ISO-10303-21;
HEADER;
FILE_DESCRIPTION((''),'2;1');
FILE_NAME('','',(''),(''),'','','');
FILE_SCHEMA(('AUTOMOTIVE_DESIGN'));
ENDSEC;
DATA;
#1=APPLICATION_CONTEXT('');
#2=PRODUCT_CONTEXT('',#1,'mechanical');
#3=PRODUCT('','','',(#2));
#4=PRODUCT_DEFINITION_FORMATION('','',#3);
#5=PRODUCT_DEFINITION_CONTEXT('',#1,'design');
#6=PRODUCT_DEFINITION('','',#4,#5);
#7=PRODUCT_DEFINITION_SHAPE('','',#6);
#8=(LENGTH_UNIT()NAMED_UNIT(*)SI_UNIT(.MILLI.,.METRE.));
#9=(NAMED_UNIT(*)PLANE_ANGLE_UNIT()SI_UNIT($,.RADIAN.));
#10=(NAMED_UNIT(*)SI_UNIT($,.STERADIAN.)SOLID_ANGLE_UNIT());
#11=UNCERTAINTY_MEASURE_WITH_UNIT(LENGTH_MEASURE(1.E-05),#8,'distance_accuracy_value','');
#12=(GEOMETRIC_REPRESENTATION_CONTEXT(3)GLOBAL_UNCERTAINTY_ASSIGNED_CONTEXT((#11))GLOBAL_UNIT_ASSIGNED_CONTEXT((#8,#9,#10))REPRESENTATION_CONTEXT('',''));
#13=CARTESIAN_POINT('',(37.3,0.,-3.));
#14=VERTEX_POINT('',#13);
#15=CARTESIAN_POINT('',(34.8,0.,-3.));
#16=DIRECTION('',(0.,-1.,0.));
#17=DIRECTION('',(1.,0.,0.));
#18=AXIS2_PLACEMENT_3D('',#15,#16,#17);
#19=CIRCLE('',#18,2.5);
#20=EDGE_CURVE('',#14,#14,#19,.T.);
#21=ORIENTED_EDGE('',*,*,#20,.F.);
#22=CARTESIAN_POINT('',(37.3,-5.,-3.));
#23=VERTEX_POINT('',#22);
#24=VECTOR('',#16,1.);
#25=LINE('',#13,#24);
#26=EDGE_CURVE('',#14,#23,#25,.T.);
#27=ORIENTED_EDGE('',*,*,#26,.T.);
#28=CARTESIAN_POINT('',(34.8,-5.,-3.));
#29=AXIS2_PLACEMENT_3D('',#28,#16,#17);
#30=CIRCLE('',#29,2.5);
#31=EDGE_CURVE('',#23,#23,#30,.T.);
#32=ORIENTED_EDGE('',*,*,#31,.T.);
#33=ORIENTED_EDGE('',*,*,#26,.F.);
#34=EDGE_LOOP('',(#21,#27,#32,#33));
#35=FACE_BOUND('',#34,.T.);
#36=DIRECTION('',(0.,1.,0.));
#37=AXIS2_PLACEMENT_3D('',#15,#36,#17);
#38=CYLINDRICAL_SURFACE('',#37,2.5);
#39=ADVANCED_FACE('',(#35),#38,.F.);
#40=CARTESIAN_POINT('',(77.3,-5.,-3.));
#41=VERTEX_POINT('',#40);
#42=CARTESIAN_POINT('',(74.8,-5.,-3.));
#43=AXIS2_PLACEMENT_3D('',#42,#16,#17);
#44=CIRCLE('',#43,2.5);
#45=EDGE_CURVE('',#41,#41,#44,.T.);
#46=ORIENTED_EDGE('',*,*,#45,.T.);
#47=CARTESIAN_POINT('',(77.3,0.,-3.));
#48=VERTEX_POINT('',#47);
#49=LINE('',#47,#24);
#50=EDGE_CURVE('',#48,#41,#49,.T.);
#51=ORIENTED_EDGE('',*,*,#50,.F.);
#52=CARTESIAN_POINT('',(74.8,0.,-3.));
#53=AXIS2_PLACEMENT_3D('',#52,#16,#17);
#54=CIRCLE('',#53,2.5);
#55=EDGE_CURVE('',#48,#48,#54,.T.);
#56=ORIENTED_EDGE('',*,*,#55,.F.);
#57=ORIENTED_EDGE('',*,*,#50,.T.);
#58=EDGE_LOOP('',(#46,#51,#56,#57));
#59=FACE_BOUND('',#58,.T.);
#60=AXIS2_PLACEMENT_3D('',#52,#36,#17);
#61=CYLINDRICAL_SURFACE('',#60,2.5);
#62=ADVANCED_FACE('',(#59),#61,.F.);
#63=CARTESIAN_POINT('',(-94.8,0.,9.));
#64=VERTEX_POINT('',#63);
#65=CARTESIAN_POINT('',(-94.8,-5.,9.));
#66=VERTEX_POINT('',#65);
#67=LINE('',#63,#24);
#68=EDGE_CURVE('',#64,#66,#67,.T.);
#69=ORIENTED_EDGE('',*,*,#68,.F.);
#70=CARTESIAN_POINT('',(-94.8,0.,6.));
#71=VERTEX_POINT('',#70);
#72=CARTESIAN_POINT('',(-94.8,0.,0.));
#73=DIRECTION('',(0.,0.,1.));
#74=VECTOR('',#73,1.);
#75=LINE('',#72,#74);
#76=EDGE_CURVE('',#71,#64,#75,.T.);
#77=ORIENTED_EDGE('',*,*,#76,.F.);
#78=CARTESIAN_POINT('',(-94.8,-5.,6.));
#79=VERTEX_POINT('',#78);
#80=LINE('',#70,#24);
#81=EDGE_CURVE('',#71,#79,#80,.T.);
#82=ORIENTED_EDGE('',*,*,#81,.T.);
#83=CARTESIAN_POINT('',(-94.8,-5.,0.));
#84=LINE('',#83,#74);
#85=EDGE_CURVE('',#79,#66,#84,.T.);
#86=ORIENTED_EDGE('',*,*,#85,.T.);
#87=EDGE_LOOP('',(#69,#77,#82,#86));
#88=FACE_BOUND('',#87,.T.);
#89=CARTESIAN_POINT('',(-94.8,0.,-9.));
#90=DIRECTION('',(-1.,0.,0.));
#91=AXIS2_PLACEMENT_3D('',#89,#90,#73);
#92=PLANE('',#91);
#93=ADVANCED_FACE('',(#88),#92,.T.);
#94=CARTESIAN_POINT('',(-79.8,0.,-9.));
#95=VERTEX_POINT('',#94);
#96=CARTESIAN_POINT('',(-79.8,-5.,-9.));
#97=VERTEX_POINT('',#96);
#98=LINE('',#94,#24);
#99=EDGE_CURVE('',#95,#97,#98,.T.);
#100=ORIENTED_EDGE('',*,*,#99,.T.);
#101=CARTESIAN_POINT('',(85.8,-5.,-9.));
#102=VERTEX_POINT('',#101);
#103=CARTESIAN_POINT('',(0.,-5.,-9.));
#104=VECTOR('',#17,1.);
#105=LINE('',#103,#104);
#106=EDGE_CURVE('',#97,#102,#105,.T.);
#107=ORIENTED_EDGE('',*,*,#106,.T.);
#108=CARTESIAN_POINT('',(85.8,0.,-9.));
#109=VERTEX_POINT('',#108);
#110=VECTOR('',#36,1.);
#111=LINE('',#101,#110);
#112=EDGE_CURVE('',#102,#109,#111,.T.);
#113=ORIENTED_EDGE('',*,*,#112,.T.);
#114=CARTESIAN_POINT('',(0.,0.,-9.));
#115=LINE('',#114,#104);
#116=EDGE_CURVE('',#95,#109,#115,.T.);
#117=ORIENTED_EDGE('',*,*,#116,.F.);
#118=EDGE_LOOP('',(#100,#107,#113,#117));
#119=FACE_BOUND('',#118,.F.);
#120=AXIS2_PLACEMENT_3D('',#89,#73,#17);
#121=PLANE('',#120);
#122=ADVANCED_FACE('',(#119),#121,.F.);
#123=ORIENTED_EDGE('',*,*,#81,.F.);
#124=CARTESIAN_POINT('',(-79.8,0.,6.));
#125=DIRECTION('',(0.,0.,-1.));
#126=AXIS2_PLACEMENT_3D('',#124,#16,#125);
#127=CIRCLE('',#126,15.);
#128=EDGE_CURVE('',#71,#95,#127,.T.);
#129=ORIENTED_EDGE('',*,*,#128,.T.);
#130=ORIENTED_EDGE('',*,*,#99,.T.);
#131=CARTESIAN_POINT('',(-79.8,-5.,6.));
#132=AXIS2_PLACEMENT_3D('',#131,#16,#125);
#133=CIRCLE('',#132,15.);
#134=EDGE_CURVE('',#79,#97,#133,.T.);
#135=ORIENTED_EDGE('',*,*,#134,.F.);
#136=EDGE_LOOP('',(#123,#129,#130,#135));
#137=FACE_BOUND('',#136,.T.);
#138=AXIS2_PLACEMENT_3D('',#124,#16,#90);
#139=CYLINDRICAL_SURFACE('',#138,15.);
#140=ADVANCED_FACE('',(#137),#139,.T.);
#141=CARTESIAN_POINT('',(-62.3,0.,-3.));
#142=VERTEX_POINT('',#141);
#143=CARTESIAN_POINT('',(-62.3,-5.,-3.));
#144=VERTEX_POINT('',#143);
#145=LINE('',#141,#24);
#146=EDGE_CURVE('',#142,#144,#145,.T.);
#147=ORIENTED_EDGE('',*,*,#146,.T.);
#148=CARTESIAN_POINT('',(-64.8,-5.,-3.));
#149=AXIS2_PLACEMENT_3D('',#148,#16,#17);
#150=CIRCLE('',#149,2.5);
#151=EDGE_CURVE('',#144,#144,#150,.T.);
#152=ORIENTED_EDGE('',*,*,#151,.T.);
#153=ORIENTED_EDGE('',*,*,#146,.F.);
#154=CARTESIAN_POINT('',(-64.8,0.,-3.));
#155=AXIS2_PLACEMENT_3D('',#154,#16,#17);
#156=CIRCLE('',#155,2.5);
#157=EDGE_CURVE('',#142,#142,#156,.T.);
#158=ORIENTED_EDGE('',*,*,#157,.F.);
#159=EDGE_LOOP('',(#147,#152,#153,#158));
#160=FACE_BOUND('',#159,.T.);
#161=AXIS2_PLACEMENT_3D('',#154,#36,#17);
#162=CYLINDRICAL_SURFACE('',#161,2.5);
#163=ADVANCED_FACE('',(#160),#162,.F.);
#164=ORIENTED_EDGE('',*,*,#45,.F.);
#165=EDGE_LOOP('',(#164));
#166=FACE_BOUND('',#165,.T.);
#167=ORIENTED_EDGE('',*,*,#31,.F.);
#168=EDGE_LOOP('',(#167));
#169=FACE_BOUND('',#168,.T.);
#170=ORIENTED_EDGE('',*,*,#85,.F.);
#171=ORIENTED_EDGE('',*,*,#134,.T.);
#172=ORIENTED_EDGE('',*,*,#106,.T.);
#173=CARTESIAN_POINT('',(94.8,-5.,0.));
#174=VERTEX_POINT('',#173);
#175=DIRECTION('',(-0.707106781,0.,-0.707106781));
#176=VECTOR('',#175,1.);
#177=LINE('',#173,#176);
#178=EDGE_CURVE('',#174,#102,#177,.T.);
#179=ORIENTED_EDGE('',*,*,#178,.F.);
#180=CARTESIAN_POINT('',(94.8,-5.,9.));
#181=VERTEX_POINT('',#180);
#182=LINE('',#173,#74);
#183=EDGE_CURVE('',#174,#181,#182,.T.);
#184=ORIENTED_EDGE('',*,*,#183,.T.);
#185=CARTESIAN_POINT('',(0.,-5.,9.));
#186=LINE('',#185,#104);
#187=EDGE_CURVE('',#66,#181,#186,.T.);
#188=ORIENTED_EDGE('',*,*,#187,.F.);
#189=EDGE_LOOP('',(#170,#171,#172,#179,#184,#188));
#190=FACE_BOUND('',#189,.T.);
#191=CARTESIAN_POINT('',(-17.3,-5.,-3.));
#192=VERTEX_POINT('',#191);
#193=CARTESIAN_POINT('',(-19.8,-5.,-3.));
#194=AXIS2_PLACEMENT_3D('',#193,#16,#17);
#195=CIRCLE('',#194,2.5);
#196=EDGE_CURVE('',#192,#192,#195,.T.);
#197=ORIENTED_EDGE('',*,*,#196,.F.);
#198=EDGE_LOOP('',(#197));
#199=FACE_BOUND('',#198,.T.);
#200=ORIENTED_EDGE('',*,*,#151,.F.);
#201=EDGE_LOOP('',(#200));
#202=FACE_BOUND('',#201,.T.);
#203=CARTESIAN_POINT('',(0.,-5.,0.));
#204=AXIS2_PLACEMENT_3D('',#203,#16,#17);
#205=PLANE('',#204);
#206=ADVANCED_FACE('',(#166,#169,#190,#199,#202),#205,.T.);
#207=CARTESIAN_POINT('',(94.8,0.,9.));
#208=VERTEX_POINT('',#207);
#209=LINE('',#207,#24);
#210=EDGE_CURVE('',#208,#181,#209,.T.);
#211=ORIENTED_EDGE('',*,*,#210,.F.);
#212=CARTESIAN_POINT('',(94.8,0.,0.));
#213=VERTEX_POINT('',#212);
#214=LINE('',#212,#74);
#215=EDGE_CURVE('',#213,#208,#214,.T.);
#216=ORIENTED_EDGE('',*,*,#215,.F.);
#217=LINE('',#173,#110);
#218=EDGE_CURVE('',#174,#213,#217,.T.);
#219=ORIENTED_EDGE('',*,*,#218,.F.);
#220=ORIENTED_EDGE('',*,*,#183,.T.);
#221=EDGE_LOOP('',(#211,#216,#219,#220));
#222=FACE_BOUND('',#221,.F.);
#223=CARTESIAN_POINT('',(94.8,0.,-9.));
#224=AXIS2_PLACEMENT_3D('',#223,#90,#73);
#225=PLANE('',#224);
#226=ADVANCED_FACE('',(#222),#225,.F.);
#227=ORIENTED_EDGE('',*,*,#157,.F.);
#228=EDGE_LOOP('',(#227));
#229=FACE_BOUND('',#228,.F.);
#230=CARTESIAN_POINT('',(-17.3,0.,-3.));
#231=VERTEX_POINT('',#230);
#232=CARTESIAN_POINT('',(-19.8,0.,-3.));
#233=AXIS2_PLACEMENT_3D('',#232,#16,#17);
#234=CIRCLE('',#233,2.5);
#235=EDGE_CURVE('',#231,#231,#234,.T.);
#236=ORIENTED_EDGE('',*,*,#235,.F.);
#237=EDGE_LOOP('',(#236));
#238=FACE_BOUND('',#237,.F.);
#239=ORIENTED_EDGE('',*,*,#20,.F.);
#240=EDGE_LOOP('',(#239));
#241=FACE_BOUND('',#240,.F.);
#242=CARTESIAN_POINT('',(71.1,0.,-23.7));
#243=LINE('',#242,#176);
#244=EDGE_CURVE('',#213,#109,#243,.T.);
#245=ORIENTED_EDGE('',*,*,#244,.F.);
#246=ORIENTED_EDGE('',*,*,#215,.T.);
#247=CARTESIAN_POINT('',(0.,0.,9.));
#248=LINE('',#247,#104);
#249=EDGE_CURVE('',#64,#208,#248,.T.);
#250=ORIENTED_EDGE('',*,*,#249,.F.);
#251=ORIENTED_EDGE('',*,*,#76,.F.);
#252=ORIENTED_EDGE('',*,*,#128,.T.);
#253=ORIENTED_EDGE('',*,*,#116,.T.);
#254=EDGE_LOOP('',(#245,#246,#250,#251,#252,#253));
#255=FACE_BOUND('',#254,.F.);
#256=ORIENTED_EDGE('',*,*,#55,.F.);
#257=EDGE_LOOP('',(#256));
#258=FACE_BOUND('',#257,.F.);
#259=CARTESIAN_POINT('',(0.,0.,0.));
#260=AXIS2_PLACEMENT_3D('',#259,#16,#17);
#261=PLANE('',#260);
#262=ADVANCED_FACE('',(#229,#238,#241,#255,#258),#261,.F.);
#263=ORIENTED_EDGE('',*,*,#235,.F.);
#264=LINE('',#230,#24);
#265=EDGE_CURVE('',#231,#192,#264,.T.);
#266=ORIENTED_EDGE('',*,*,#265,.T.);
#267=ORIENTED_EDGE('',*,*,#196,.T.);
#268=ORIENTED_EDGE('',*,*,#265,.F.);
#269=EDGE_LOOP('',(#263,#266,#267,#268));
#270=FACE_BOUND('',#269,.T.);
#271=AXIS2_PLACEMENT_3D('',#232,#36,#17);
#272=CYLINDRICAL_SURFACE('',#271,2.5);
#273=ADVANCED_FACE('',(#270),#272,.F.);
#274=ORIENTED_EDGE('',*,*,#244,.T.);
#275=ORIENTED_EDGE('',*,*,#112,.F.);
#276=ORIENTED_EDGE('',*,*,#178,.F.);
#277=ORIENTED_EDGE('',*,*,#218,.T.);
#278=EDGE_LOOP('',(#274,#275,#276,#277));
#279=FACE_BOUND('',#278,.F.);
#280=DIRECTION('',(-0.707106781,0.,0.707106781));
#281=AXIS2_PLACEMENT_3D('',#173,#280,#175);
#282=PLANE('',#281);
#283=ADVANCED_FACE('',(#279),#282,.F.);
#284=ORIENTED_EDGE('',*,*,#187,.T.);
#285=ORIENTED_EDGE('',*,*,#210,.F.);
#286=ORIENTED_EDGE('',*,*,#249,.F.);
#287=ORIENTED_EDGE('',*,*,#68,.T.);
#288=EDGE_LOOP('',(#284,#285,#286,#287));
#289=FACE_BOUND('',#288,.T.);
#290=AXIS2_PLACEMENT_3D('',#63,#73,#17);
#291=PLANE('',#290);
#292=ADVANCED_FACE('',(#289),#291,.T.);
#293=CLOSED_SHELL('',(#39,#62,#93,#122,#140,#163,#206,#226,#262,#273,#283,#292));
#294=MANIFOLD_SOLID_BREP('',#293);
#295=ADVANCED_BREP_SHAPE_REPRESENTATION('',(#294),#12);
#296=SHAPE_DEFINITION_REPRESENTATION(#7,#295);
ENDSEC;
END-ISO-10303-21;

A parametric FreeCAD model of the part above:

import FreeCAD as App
import Part
import Sketcher

V = App.Vector


def edges_at(feature, points):
    """Names of the edges that pass closest to the given points."""
    edges = feature.Shape.Edges
    near = lambda p: min(range(len(edges)), key=lambda i: edges[i].distToShape(Part.Vertex(*p))[0])
    return sorted({f"Edge{near(p) + 1}" for p in points})


def add_polygon(sketch, points):
    """Adds a closed chain of lines whose ends are joined by coincident constraints."""
    first, n = sketch.GeometryCount, len(points)
    for a, b in zip(points, points[1:] + points[:1]):
        sketch.addGeometry(Part.LineSegment(App.Vector(*a, 0), App.Vector(*b, 0)), False)
    for i in range(n):
        sketch.addConstraint(Sketcher.Constraint("Coincident", first + i, 2, first + (i + 1) % n, 1))

doc = App.newDocument("Part")
body = doc.addObject("PartDesign::Body", "Body")

sketch1 = doc.addObject("Sketcher::SketchObject", "Sketch")
body.addObject(sketch1)
sketch1.AttachmentSupport = (doc.XZ_Plane, [""])
sketch1.MapMode = "FlatFace"
add_polygon(sketch1, [(-94.8, 9), (-94.8, -9), (94.8, -9), (94.8, 9)])
sketch1.addGeometry(Part.Circle(V(-64.8, -3, 0), V(0, 0, 1), 2.5), False)
sketch1.addGeometry(Part.Circle(V(-19.8, -3, 0), V(0, 0, 1), 2.5), False)
sketch1.addGeometry(Part.Circle(V(34.8, -3, 0), V(0, 0, 1), 2.5), False)
sketch1.addGeometry(Part.Circle(V(74.8, -3, 0), V(0, 0, 1), 2.5), False)
sketch1.addConstraint([
    Sketcher.Constraint("Vertical", 0),
    Sketcher.Constraint("Horizontal", 1),
    Sketcher.Constraint("Vertical", 2),
    Sketcher.Constraint("Horizontal", 3),
    Sketcher.Constraint("Equal", 4, 5),
    Sketcher.Constraint("Equal", 5, 6),
    Sketcher.Constraint("Equal", 6, 7),
    Sketcher.Constraint("Symmetric", 0, 2, 2, 2, -1, 1),
    Sketcher.Constraint("Horizontal", 4, 3, 5, 3),
    Sketcher.Constraint("Horizontal", 5, 3, 6, 3),
    Sketcher.Constraint("Horizontal", 6, 3, 7, 3),
    Sketcher.Constraint("Diameter", 4, 5.0),
    Sketcher.Constraint("DistanceY", 0, 2, 0, 1, 18.0),
    Sketcher.Constraint("DistanceX", 1, 1, 1, 2, 189.6),
    Sketcher.Constraint("DistanceY", 4, 3, -1, 1, 3.0),
    Sketcher.Constraint("DistanceX", 4, 3, 5, 3, 45.0),
    Sketcher.Constraint("DistanceX", 6, 3, 7, 3, 40.0),
    Sketcher.Constraint("DistanceX", 0, 2, 4, 3, 30.0),
    Sketcher.Constraint("DistanceX", 7, 3, 1, 2, 20.0),
])
pad1 = doc.addObject("PartDesign::Pad", "Pad")
body.addObject(pad1)
pad1.Profile = sketch1
pad1.Length = 5

sketch2 = doc.addObject("Sketcher::SketchObject", "Sketch001")
body.addObject(sketch2)
sketch2.AttachmentSupport = (doc.XZ_Plane, [""])
sketch2.MapMode = "FlatFace"
sketch2.AttachmentOffset = App.Placement(V(0, 0, 5), App.Rotation())
add_polygon(sketch2, [(94.8, -9), (94.8, 0), (85.8, -9)])
sketch2.addConstraint([
    Sketcher.Constraint("Vertical", 0),
    Sketcher.Constraint("Horizontal", 2),
    Sketcher.Constraint("PointOnObject", 0, 2, -1),
    Sketcher.Constraint("Equal", 2, 0),
    Sketcher.Constraint("DistanceX", 2, 1, 2, 2, 9.0),
    Sketcher.Constraint("DistanceX", -1, 1, 0, 2, 94.8),
])
pocket1 = doc.addObject("PartDesign::Pocket", "Pocket")
body.addObject(pocket1)
pocket1.Profile = sketch2
pocket1.Length = 25
doc.recompute()

fillet = doc.addObject("PartDesign::Fillet", "Fillet")
body.addObject(fillet)
fillet.Base = (pocket1, edges_at(pocket1, [(-94.8, -2.5, -9)]))
fillet.Radius = 15

doc.recompute()
